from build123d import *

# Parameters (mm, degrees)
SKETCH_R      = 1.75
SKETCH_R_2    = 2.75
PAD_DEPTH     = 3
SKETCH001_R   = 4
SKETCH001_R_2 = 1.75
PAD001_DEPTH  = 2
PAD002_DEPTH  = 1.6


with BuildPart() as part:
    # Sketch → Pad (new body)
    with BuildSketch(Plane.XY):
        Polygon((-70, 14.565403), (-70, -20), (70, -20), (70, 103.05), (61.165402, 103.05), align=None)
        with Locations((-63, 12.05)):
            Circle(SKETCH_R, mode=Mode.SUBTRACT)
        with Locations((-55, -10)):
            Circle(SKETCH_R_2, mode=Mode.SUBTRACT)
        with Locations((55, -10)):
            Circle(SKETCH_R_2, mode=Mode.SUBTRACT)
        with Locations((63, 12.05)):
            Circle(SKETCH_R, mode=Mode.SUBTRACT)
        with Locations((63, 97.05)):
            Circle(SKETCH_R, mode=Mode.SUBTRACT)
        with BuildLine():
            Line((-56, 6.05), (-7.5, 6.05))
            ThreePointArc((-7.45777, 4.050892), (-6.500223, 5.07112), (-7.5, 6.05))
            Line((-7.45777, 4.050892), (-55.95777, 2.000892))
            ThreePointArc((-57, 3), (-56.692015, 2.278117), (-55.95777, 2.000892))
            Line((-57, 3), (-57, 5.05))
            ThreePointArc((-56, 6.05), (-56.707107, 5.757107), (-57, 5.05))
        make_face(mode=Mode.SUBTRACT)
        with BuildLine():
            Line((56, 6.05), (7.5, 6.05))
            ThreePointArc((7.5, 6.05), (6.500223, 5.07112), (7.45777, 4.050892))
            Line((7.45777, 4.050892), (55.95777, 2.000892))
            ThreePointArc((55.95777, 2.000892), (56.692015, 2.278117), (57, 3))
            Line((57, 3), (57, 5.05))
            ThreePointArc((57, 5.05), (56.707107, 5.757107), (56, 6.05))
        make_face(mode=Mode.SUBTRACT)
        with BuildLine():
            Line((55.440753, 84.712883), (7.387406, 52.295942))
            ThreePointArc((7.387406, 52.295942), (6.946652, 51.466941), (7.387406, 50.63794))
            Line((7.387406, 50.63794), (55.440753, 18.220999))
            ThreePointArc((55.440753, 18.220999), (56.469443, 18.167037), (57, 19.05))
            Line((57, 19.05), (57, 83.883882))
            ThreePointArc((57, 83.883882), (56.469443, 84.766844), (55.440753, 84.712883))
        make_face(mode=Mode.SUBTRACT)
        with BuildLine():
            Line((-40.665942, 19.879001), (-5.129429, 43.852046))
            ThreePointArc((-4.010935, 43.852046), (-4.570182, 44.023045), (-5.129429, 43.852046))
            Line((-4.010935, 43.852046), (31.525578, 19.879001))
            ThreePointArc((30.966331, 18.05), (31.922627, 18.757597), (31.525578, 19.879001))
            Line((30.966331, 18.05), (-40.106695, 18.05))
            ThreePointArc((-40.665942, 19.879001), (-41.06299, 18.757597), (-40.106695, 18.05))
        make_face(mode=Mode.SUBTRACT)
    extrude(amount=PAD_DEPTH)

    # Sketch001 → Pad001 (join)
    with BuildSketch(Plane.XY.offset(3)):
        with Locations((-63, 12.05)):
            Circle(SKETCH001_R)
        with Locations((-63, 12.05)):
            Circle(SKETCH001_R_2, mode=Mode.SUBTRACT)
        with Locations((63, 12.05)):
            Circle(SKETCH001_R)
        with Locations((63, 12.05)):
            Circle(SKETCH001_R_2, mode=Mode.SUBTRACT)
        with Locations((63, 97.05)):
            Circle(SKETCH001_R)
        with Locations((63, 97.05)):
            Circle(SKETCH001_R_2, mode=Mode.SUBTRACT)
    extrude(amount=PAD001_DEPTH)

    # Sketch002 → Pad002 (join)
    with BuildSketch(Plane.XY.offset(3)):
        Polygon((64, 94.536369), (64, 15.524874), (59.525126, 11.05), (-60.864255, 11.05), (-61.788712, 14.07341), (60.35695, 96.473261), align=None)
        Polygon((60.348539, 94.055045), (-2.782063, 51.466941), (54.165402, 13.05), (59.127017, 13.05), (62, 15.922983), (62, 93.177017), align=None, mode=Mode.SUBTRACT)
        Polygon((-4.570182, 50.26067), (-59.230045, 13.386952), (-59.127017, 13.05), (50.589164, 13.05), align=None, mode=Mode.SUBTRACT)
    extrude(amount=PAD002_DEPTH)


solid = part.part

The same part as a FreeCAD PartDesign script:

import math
import FreeCAD as App
import Part
import Sketcher
Q = App.Units.Quantity

doc = App.newDocument("Part")
params = doc.addObject("Spreadsheet::Sheet", "Params")
for row, (alias, value) in enumerate([
    ("sketch1_radius", "0.999999 mm"),
    ("sketch1_radius2", "1 mm"),
    ("sketch1_radius3", "1 mm"),
    ("sketch1_radius4", "1 mm"),
    ("sketch1_radius5", "1 mm"),
    ("pad1_length", "3 mm"),
    ("sketch2_diameter", "8 mm"),
    ("sketch2_diameter2", "3.5 mm"),
    ("pad2_length", "2 mm"),
    ("pad3_length", "1.6 mm"),
], start=1):
    params.set(f"A{row}", alias)
    params.set(f"B{row}", "=" + value)
    params.setAlias(f"B{row}", alias)

body = doc.addObject("PartDesign::Body", "Body")

# Sketch on XY plane
sketch1 = body.newObject("Sketcher::SketchObject", "Sketch")
sketch1.AttachmentSupport = (doc.getObject("XY_Plane"), [""])
sketch1.MapMode = "FlatFace"
sketch1.addGeometry([
    Part.LineSegment(App.Vector(-70, 14.565403, 0), App.Vector(-70, -20, 0)),  # 0
    Part.LineSegment(App.Vector(-70, -20, 0), App.Vector(70, -20, 0)),  # 1
    Part.LineSegment(App.Vector(70, -20, 0), App.Vector(70, 103.05, 0)),  # 2
    Part.LineSegment(App.Vector(70, 103.05, 0), App.Vector(61.165402, 103.05, 0)),  # 3
    Part.LineSegment(App.Vector(61.165402, 103.05, 0), App.Vector(-70, 14.565403, 0)),  # 4
    Part.Circle(App.Vector(-55, -10, 0), App.Vector(0, 0, 1), 2.75),  # 5
    Part.Circle(App.Vector(-63, 12.05, 0), App.Vector(0, 0, 1), 1.75),  # 6
    Part.ArcOfCircle(Part.Circle(App.Vector(-56.000001, 5.050001, 0), App.Vector(0, 0, 1), 0.999999), math.radians(89.999957), math.radians(180.000043)),  # 7
    Part.LineSegment(App.Vector(-56, 6.05, 0), App.Vector(-7.5, 6.05, 0)),  # 8
    Part.ArcOfCircle(Part.Circle(App.Vector(-7.5, 5.05, 0), App.Vector(0, 0, 1), 1), math.radians(-87.57968), math.radians(90.000001)),  # 9
    Part.LineSegment(App.Vector(-7.45777, 4.050892, 0), App.Vector(-55.95777, 2.000892, 0)),  # 10
    Part.ArcOfCircle(Part.Circle(App.Vector(-56, 3, 0), App.Vector(0, 0, 1), 1), math.radians(-179.999985), math.radians(-87.579699)),  # 11
    Part.LineSegment(App.Vector(-57, 3, 0), App.Vector(-57, 5.05, 0)),  # 12
    Part.ArcOfCircle(Part.Circle(App.Vector(-40.106695, 19.05, 0), App.Vector(0, 0, 1), 1), math.radians(124.003752), math.radians(269.999988)),  # 13
    Part.LineSegment(App.Vector(-40.665942, 19.879001, 0), App.Vector(-5.129429, 43.852046, 0)),  # 14
    Part.ArcOfCircle(Part.Circle(App.Vector(-4.570182, 43.023045, 0), App.Vector(0, 0, 1), 1), math.radians(55.996246), math.radians(124.003754)),  # 15
    Part.LineSegment(App.Vector(-4.010935, 43.852046, 0), App.Vector(31.525578, 19.879001, 0)),  # 16
    Part.ArcOfCircle(Part.Circle(App.Vector(30.966332, 19.05, 0), App.Vector(0, 0, 1), 1), math.radians(-90.000062), math.radians(55.996322)),  # 17
    Part.LineSegment(App.Vector(30.966331, 18.05, 0), App.Vector(-40.106695, 18.05, 0)),  # 18
    Part.LineSegment(App.Vector(7.5, 6.05, 0), App.Vector(56, 6.05, 0)),  # 19
    Part.ArcOfCircle(Part.Circle(App.Vector(56.000001, 5.050001, 0), App.Vector(0, 0, 1), 0.999999), math.radians(-0.000043), math.radians(90.000043)),  # 20
    Part.LineSegment(App.Vector(57, 5.05, 0), App.Vector(57, 3, 0)),  # 21
    Part.ArcOfCircle(Part.Circle(App.Vector(56, 3, 0), App.Vector(0, 0, 1), 1), math.radians(-92.420301), math.radians(-0.000015)),  # 22
    Part.LineSegment(App.Vector(55.95777, 2.000892, 0), App.Vector(7.45777, 4.050892, 0)),  # 23
    Part.ArcOfCircle(Part.Circle(App.Vector(7.5, 5.05, 0), App.Vector(0, 0, 1), 1), math.radians(89.999999), math.radians(267.57968)),  # 24
    Part.Circle(App.Vector(55, -10, 0), App.Vector(0, 0, 1), 2.75),  # 25
    Part.Circle(App.Vector(63, 12.05, 0), App.Vector(0, 0, 1), 1.75),  # 26
    Part.LineSegment(App.Vector(7.387406, 52.295942, 0), App.Vector(55.440753, 84.712883, 0)),  # 27
    Part.ArcOfCircle(Part.Circle(App.Vector(55.999999, 83.883881, 0), App.Vector(0, 0, 1), 1.000001), math.radians(0.000063), math.radians(124.00368)),  # 28
    Part.LineSegment(App.Vector(57, 83.883882, 0), App.Vector(57, 19.05, 0)),  # 29
    Part.ArcOfCircle(Part.Circle(App.Vector(56, 19.05, 0), App.Vector(0, 0, 1), 1), math.radians(-124.003764), math.radians(0.000021)),  # 30
    Part.LineSegment(App.Vector(55.440753, 18.220999, 0), App.Vector(7.387406, 50.63794, 0)),  # 31
    Part.ArcOfCircle(Part.Circle(App.Vector(7.946651, 51.466941, 0), App.Vector(0, 0, 1), 0.999999), math.radians(124.003626), math.radians(235.996374)),  # 32
    Part.Circle(App.Vector(63, 97.05, 0), App.Vector(0, 0, 1), 1.75),  # 33
], False)
sketch1.addConstraint([
    Sketcher.Constraint("Coincident", 0, 2, 1, 1),
    Sketcher.Constraint("Coincident", 1, 2, 2, 1),
    Sketcher.Constraint("Coincident", 2, 2, 3, 1),
    Sketcher.Constraint("Coincident", 3, 2, 4, 1),
    Sketcher.Constraint("Coincident", 4, 2, 0, 1),
    Sketcher.Constraint("Coincident", 7, 1, 8, 1),
    Sketcher.Constraint("Coincident", 8, 2, 9, 2),
    Sketcher.Constraint("Coincident", 9, 1, 10, 1),
    Sketcher.Constraint("Coincident", 10, 2, 11, 2),
    Sketcher.Constraint("Coincident", 11, 1, 12, 1),
    Sketcher.Constraint("Coincident", 12, 2, 7, 2),
    Sketcher.Constraint("Coincident", 13, 1, 14, 1),
    Sketcher.Constraint("Coincident", 14, 2, 15, 2),
    Sketcher.Constraint("Coincident", 15, 1, 16, 1),
    Sketcher.Constraint("Coincident", 16, 2, 17, 2),
    Sketcher.Constraint("Coincident", 17, 1, 18, 1),
    Sketcher.Constraint("Coincident", 18, 2, 13, 2),
    Sketcher.Constraint("Coincident", 19, 2, 20, 2),
    Sketcher.Constraint("Coincident", 20, 1, 21, 1),
    Sketcher.Constraint("Coincident", 21, 2, 22, 2),
    Sketcher.Constraint("Coincident", 22, 1, 23, 1),
    Sketcher.Constraint("Coincident", 23, 2, 24, 2),
    Sketcher.Constraint("Coincident", 24, 1, 19, 1),
    Sketcher.Constraint("Coincident", 27, 2, 28, 2),
    Sketcher.Constraint("Coincident", 28, 1, 29, 1),
    Sketcher.Constraint("Coincident", 29, 2, 30, 2),
    Sketcher.Constraint("Coincident", 30, 1, 31, 1),
    Sketcher.Constraint("Coincident", 31, 2, 32, 2),
    Sketcher.Constraint("Coincident", 32, 1, 27, 1),
    Sketcher.Constraint("Vertical", 0),
    Sketcher.Constraint("Horizontal", 1),
    Sketcher.Constraint("Vertical", 2),
    Sketcher.Constraint("Horizontal", 3),
    Sketcher.Constraint("Horizontal", 8),
    Sketcher.Constraint("Vertical", 12),
    Sketcher.Constraint("Horizontal", 18),
    Sketcher.Constraint("Horizontal", 19),
    Sketcher.Constraint("Vertical", 21),
    Sketcher.Constraint("Vertical", 29),
    Sketcher.Constraint("Radius", 7, 0.999999),
    Sketcher.Constraint("Radius", 9, 1.0),
    Sketcher.Constraint("Radius", 11, 1.0),
    Sketcher.Constraint("Radius", 13, 1.0),
    Sketcher.Constraint("Radius", 15, 1.0),
    Sketcher.Constraint("Radius", 17, 1.0),
    Sketcher.Constraint("Radius", 20, 0.999999),
    Sketcher.Constraint("Radius", 22, 1.0),
    Sketcher.Constraint("Radius", 24, 1.0),
    Sketcher.Constraint("Radius", 28, 1.000001),
    Sketcher.Constraint("Radius", 30, 1.0),
    Sketcher.Constraint("Radius", 32, 0.999999),
    Sketcher.Constraint("Diameter", 5, 5.5),
    Sketcher.Constraint("Diameter", 6, 3.5),
    Sketcher.Constraint("Diameter", 25, 5.5),
    Sketcher.Constraint("Diameter", 26, 3.5),
    Sketcher.Constraint("Diameter", 33, 3.5),
    Sketcher.Constraint("DistanceX", 1, 1, 1, 2, 140.0),
    Sketcher.Constraint("DistanceX", 8, 1, 8, 2, 48.5),
    Sketcher.Constraint("DistanceX", 19, 1, 19, 2, 48.5),
    Sketcher.Constraint("DistanceX", 5, 3, -1, 1, 55.0),
    Sketcher.Constraint("DistanceY", 5, 3, -1, 1, 10.0),
    Sketcher.Constraint("DistanceX", 6, 3, -1, 1, 63.0),
    Sketcher.Constraint("DistanceX", 7, 3, -1, 1, 56.000001),
    Sketcher.Constraint("DistanceY", -1, 1, 11, 3, 3.0),
    Sketcher.Constraint("DistanceX", -1, 1, 20, 3, 56.000001),
    Sketcher.Constraint("DistanceY", -1, 1, 22, 3, 3.0),
    Sketcher.Constraint("DistanceX", -1, 1, 25, 3, 55.0),
    Sketcher.Constraint("DistanceY", 25, 3, -1, 1, 10.0),
    Sketcher.Constraint("DistanceX", -1, 1, 26, 3, 63.0),
    Sketcher.Constraint("DistanceX", -1, 1, 28, 3, 55.999999),
    Sketcher.Constraint("DistanceX", -1, 1, 33, 3, 63.0),
    Sketcher.Constraint("DistanceX", 0, 2, -1, 1, 70.0),
    Sketcher.Constraint("DistanceY", 0, 2, -1, 1, 20.0),
    Sketcher.Constraint("DistanceX", 7, 1, -1, 1, 56.0),
    Sketcher.Constraint("DistanceY", -1, 1, 11, 1, 3.0),
    Sketcher.Constraint("DistanceX", -1, 1, 19, 2, 56.0),
    Sketcher.Constraint("DistanceY", -1, 1, 21, 2, 3.0),
    Sketcher.Constraint("DistanceY", 7, 3, 6, 3, 6.999999),
    Sketcher.Constraint("DistanceY", 7, 3, 13, 3, 13.999999),
    Sketcher.Constraint("DistanceY", 20, 3, 17, 3, 13.999999),
    Sketcher.Constraint("DistanceX", 9, 3, 24, 3, 15.0),
    Sketcher.Constraint("DistanceY", 20, 3, 26, 3, 6.999999),
    Sketcher.Constraint("DistanceY", 26, 3, 30, 3, 7.0),
    Sketcher.Constraint("DistanceY", 30, 3, 33, 3, 78.0),
    Sketcher.Constraint("DistanceY", 33, 3, 2, 2, 6.0),
    Sketcher.Constraint("DistanceX", 8, 2, 24, 3, 15.0),
    Sketcher.Constraint("DistanceY", 12, 2, 7, 1, 1.0),
    Sketcher.Constraint("DistanceY", 20, 1, 19, 2, 1.0),
    Sketcher.Constraint("DistanceY", 26, 3, 29, 2, 7.0),
    Sketcher.Constraint("DistanceY", 2, 1, 2, 2, 123.05),
    Sketcher.Constraint("DistanceY", -1, 1, 13, 1, 19.879001),
    Sketcher.Constraint("DistanceY", -1, 1, 16, 2, 19.879001),
    Sketcher.Constraint("DistanceY", -1, 1, 30, 1, 18.220999),
    Sketcher.Constraint("DistanceY", 15, 3, 14, 2, 0.829001),
    Sketcher.Constraint("DistanceY", 15, 3, 15, 1, 0.829001),
    Sketcher.Constraint("DistanceY", 28, 1, 27, 2, 0.829001),
    Sketcher.Constraint("DistanceY", 31, 2, 32, 3, 0.829001),
    Sketcher.Constraint("DistanceY", 32, 3, 32, 1, 0.829001),
    Sketcher.Constraint("DistanceX", 30, 3, 3, 2, 5.165402),
    Sketcher.Constraint("Distance", 14, 42.866661),
    Sketcher.Constraint("Distance", 16, 42.866661),
    Sketcher.Constraint("DistanceX", 18, 2, 18, 1, 71.073026),
    Sketcher.Constraint("DistanceY", 0, 2, 0, 1, 34.565403),
    Sketcher.Constraint("DistanceY", 29, 2, 29, 1, 64.833882),
    Sketcher.Constraint("DistanceY", -1, 1, 28, 3, 83.883881),
    Sketcher.Constraint("DistanceX", -1, 1, 32, 3, 7.946651),
    Sketcher.Constraint("DistanceY", -1, 1, 32, 3, 51.466941),
    Sketcher.Constraint("DistanceX", 9, 1, -1, 1, 7.45777),
    Sketcher.Constraint("DistanceX", 10, 2, -1, 1, 55.95777),
    Sketcher.Constraint("DistanceX", 13, 1, -1, 1, 40.665942),
    Sketcher.Constraint("DistanceX", 14, 2, -1, 1, 5.129429),
    Sketcher.Constraint("DistanceX", -1, 1, 17, 1, 30.966331),
    Sketcher.Constraint("DistanceX", -1, 1, 22, 1, 55.95777),
    Sketcher.Constraint("DistanceX", -1, 1, 23, 2, 7.45777),
])
sketch1.setExpression("Constraints[39]", "Params.sketch1_radius")
sketch1.setExpression("Constraints[40]", "Params.sketch1_radius2")
sketch1.setExpression("Constraints[41]", "Params.sketch1_radius3")
sketch1.setExpression("Constraints[42]", "Params.sketch1_radius4")
sketch1.setExpression("Constraints[43]", "Params.sketch1_radius5")
pad1 = body.newObject("PartDesign::Pad", "Pad")
pad1.Profile = sketch1
pad1.setExpression("Length", "Params.pad1_length")

# Sketch on XY plane
sketch2 = body.newObject("Sketcher::SketchObject", "Sketch001")
sketch2.AttachmentSupport = (doc.getObject("XY_Plane"), [""])
sketch2.MapMode = "FlatFace"
sketch2.AttachmentOffset = App.Placement(App.Vector(0, 0, 3), App.Rotation())
sketch2.addGeometry([
    Part.Circle(App.Vector(-63, 12.1, 0), App.Vector(0, 0, 1), 4),  # 0
    Part.Circle(App.Vector(-63, 12.1, 0), App.Vector(0, 0, 1), 1.8),  # 1
    Part.Circle(App.Vector(63, 12.1, 0), App.Vector(0, 0, 1), 4),  # 2
    Part.Circle(App.Vector(63, 12.1, 0), App.Vector(0, 0, 1), 1.8),  # 3
    Part.Circle(App.Vector(63, 97, 0), App.Vector(0, 0, 1), 4),  # 4
    Part.Circle(App.Vector(63, 97, 0), App.Vector(0, 0, 1), 1.8),  # 5
], False)
sketch2.addConstraint([
    Sketcher.Constraint("Coincident", 1, 3, 0, 3),
    Sketcher.Constraint("Coincident", 3, 3, 2, 3),
    Sketcher.Constraint("Coincident", 5, 3, 4, 3),
    Sketcher.Constraint("Equal", 0, 2),
    Sketcher.Constraint("Equal", 1, 3),
    Sketcher.Constraint("Equal", 2, 4),
    Sketcher.Constraint("Equal", 3, 5),
    Sketcher.Constraint("Symmetric", 0, 3, 2, 3, -2),
    Sketcher.Constraint("Vertical", 3, 3, 4, 3),
    Sketcher.Constraint("Diameter", 0, 8.0),
    Sketcher.Constraint("Diameter", 1, 3.5),
    Sketcher.Constraint("DistanceX", 0, 3, -1, 1, 63.0),
    Sketcher.Constraint("DistanceY", 2, 3, 4, 3, 85.0),
    Sketcher.Constraint("DistanceY", -1, 1, 0, 3, 12.05),
])
sketch2.setExpression("Constraints[9]", "Params.sketch2_diameter")
sketch2.setExpression("Constraints[10]", "Params.sketch2_diameter2")
pad2 = body.newObject("PartDesign::Pad", "Pad001")
pad2.Profile = sketch2
pad2.setExpression("Length", "Params.pad2_length")

# Sketch on XY plane
sketch3 = body.newObject("Sketcher::SketchObject", "Sketch002")
sketch3.AttachmentSupport = (doc.getObject("XY_Plane"), [""])
sketch3.MapMode = "FlatFace"
sketch3.AttachmentOffset = App.Placement(App.Vector(0, 0, 3), App.Rotation())
sketch3.addGeometry([
    Part.LineSegment(App.Vector(64, 15.52, 0), App.Vector(64, 94.54, 0)),  # 0
    Part.LineSegment(App.Vector(64, 94.54, 0), App.Vector(60.36, 96.47, 0)),  # 1
    Part.LineSegment(App.Vector(60.36, 96.47, 0), App.Vector(-61.79, 14.07, 0)),  # 2
    Part.LineSegment(App.Vector(-61.79, 14.07, 0), App.Vector(-60.86, 11.05, 0)),  # 3
    Part.LineSegment(App.Vector(-60.86, 11.05, 0), App.Vector(59.53, 11.05, 0)),  # 4
    Part.LineSegment(App.Vector(59.53, 11.05, 0), App.Vector(64, 15.52, 0)),  # 5
    Part.LineSegment(App.Vector(-4.57, 50.26, 0), App.Vector(50.59, 13.05, 0)),  # 6
    Part.LineSegment(App.Vector(50.59, 13.05, 0), App.Vector(-59.13, 13.05, 0)),  # 7
    Part.LineSegment(App.Vector(-59.13, 13.05, 0), App.Vector(-59.23, 13.39, 0)),  # 8
    Part.LineSegment(App.Vector(-59.23, 13.39, 0), App.Vector(-4.57, 50.26, 0)),  # 9
    Part.LineSegment(App.Vector(60.35, 94.06, 0), App.Vector(62, 93.18, 0)),  # 10
    Part.LineSegment(App.Vector(62, 93.18, 0), App.Vector(62, 15.92, 0)),  # 11
    Part.LineSegment(App.Vector(62, 15.92, 0), App.Vector(59.13, 13.05, 0)),  # 12
    Part.LineSegment(App.Vector(59.13, 13.05, 0), App.Vector(54.17, 13.05, 0)),  # 13
    Part.LineSegment(App.Vector(54.17, 13.05, 0), App.Vector(-2.78, 51.47, 0)),  # 14
    Part.LineSegment(App.Vector(-2.78, 51.47, 0), App.Vector(60.35, 94.06, 0)),  # 15
], False)
sketch3.addConstraint([
    Sketcher.Constraint("Coincident", 0, 2, 1, 1),
    Sketcher.Constraint("Coincident", 1, 2, 2, 1),
    Sketcher.Constraint("Coincident", 2, 2, 3, 1),
    Sketcher.Constraint("Coincident", 3, 2, 4, 1),
    Sketcher.Constraint("Coincident", 4, 2, 5, 1),
    Sketcher.Constraint("Coincident", 5, 2, 0, 1),
    Sketcher.Constraint("Coincident", 6, 2, 7, 1),
    Sketcher.Constraint("Coincident", 7, 2, 8, 1),
    Sketcher.Constraint("Coincident", 8, 2, 9, 1),
    Sketcher.Constraint("Coincident", 9, 2, 6, 1),
    Sketcher.Constraint("Coincident", 10, 2, 11, 1),
    Sketcher.Constraint("Coincident", 11, 2, 12, 1),
    Sketcher.Constraint("Coincident", 12, 2, 13, 1),
    Sketcher.Constraint("Coincident", 13, 2, 14, 1),
    Sketcher.Constraint("Coincident", 14, 2, 15, 1),
    Sketcher.Constraint("Coincident", 15, 2, 10, 1),
    Sketcher.Constraint("Vertical", 0),
    Sketcher.Constraint("Horizontal", 4),
    Sketcher.Constraint("Horizontal", 7),
    Sketcher.Constraint("Vertical", 11),
    Sketcher.Constraint("Horizontal", 13),
    Sketcher.Constraint("Symmetric", 7, 2, 12, 2, -2),
    Sketcher.Constraint("Parallel", 3, 8),
    Sketcher.Constraint("Parallel", 2, 9),
    Sketcher.Constraint("Parallel", 1, 10),
    Sketcher.Constraint("Parallel", 5, 12),
    Sketcher.Constraint("Parallel", 6, 14),
    Sketcher.Constraint("Parallel", 9, 15),
    Sketcher.Constraint("Angle", 5, Q("45 deg")),
    Sketcher.Constraint("DistanceX", -1, 1, 0, 2, 64.0),
    Sketcher.Constraint("DistanceX", -1, 1, 10, 2, 62.0),
    Sketcher.Constraint("DistanceY", 4, 2, 6, 2, 2.0),
    Sketcher.Constraint("DistanceY", -1, 1, 3, 2, 11.05),
    Sketcher.Constraint("Distance", 9, 65.934602),
    Sketcher.Constraint("DistanceX", 4, 1, 4, 2, 120.389381),
    Sketcher.Constraint("DistanceX", 7, 2, 7, 1, 109.716181),
    Sketcher.Constraint("DistanceX", 9, 2, 12, 2, 63.697199),
    Sketcher.Constraint("Distance", 8, 0.352351),
    Sketcher.Constraint("Distance", 12, 4.063012),
    Sketcher.Constraint("Distance", 14, 68.694069),
    Sketcher.Constraint("DistanceX", 13, 2, 13, 1, 4.961615),
    Sketcher.Constraint("DistanceY", 0, 1, 0, 2, 79.011495),
    Sketcher.Constraint("DistanceY", 11, 2, 11, 1, 77.254034),
    Sketcher.Constraint("DistanceY", -1, 1, 0, 2, 94.536369),
    Sketcher.Constraint("DistanceX", -1, 1, 1, 2, 60.35695),
    Sketcher.Constraint("DistanceY", -1, 1, 1, 2, 96.473261),
    Sketcher.Constraint("DistanceX", 2, 2, -1, 1, 61.788712),
])
pad3 = body.newObject("PartDesign::Pad", "Pad002")
pad3.Profile = sketch3
pad3.setExpression("Length", "Params.pad3_length")

doc.recompute()
